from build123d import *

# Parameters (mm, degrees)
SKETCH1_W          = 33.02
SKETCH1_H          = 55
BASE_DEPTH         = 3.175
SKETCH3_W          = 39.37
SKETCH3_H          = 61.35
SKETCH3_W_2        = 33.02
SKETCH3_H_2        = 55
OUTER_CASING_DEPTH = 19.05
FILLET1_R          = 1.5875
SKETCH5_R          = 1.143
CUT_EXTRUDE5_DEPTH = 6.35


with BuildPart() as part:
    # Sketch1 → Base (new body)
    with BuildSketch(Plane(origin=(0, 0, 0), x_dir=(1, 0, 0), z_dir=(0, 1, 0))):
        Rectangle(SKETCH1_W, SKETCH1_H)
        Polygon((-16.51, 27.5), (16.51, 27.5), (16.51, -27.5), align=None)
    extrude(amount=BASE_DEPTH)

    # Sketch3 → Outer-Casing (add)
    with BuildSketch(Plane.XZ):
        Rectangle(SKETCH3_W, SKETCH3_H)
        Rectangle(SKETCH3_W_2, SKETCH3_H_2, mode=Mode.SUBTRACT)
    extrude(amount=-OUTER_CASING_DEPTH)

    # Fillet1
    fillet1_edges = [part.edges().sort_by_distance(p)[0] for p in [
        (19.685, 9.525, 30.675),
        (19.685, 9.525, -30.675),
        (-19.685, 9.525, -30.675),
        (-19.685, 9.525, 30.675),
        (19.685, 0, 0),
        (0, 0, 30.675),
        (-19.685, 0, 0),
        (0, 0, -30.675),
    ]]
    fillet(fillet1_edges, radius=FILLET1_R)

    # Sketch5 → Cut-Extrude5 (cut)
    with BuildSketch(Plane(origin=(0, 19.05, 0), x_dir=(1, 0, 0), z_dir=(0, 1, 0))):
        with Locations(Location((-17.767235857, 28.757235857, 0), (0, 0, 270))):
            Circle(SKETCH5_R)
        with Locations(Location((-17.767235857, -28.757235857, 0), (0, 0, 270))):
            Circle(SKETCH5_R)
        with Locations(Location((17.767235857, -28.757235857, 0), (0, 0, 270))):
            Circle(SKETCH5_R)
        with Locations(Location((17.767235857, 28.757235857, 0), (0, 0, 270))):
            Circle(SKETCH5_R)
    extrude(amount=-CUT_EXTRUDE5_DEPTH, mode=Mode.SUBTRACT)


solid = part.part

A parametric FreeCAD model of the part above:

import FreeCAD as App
import Part
import Sketcher
Q = App.Units.Quantity


def edges_at(feature, points):
    """Names of the edges that pass closest to the given points."""
    edges = feature.Shape.Edges
    near = lambda p: min(range(len(edges)), key=lambda i: edges[i].distToShape(Part.Vertex(*p))[0])
    return sorted({f"Edge{near(p) + 1}" for p in points})


def add_polygon(sketch, points):
    """Adds a closed chain of lines whose ends are joined by coincident constraints."""
    first, n = sketch.GeometryCount, len(points)
    for a, b in zip(points, points[1:] + points[:1]):
        sketch.addGeometry(Part.LineSegment(App.Vector(*a, 0), App.Vector(*b, 0)), False)
    for i in range(n):
        sketch.addConstraint(Sketcher.Constraint("Coincident", first + i, 2, first + (i + 1) % n, 1))

doc = App.newDocument("Part")
body = doc.addObject("PartDesign::Body", "Body")

sketch1 = doc.addObject("Sketcher::SketchObject", "Sketch")
body.addObject(sketch1)
sketch1.AttachmentSupport = (doc.XZ_Plane, [""])
sketch1.MapMode = "FlatFace"
add_polygon(sketch1, [(-16.51, -27.5), (-16.51, 27.5), (16.51, 27.5), (16.51, -27.5)])
sketch1.addConstraint(Sketcher.Constraint("Vertical", 0))
sketch1.addConstraint(Sketcher.Constraint("Horizontal", 1))
sketch1.addConstraint(Sketcher.Constraint("Vertical", 2))
sketch1.addConstraint(Sketcher.Constraint("Horizontal", 3))
sketch1.addConstraint(Sketcher.Constraint("Symmetric", 0, 2, 2, 2, -1, 1))
sketch1.addConstraint(Sketcher.Constraint("DistanceX", 1, 1, 1, 2, Q("1.3 in")))
sketch1.addConstraint(Sketcher.Constraint("DistanceY", 0, 1, 0, 2, 55.0))
pad1 = doc.addObject("PartDesign::Pad", "Pad")
body.addObject(pad1)
pad1.Profile = sketch1
pad1.Length = Q("0.125 in")
pad1.Reversed = True

sketch2 = doc.addObject("Sketcher::SketchObject", "Sketch001")
body.addObject(sketch2)
sketch2.AttachmentSupport = (doc.XZ_Plane, [""])
sketch2.MapMode = "FlatFace"
add_polygon(sketch2, [(-19.685, 30.675), (-19.685, -30.675), (19.685, -30.675), (19.685, 30.675)])
add_polygon(sketch2, [(16.51, -27.5), (-16.51, -27.5), (-16.51, 27.5), (16.51, 27.5)])
sketch2.addConstraint(Sketcher.Constraint("Vertical", 0))
sketch2.addConstraint(Sketcher.Constraint("Horizontal", 1))
sketch2.addConstraint(Sketcher.Constraint("Vertical", 2))
sketch2.addConstraint(Sketcher.Constraint("Horizontal", 3))
sketch2.addConstraint(Sketcher.Constraint("Horizontal", 4))
sketch2.addConstraint(Sketcher.Constraint("Vertical", 5))
sketch2.addConstraint(Sketcher.Constraint("Horizontal", 6))
sketch2.addConstraint(Sketcher.Constraint("Vertical", 7))
sketch2.addConstraint(Sketcher.Constraint("Symmetric", 0, 2, 2, 2, -1, 1))
sketch2.addConstraint(Sketcher.Constraint("Symmetric", 4, 2, 6, 2, -1, 1))
sketch2.addConstraint(Sketcher.Constraint("DistanceX", 4, 2, 4, 1, Q("1.3 in")))
sketch2.addConstraint(Sketcher.Constraint("DistanceX", 1, 1, 1, 2, Q("1.55 in")))
sketch2.addConstraint(Sketcher.Constraint("DistanceY", 0, 2, 4, 2, Q("0.125 in")))
sketch2.addConstraint(Sketcher.Constraint("DistanceY", 0, 2, 0, 1, 61.35))
pad2 = doc.addObject("PartDesign::Pad", "Pad001")
body.addObject(pad2)
pad2.Profile = sketch2
pad2.Length = Q("0.75 in")
pad2.Reversed = True
doc.recompute()

fillet = doc.addObject("PartDesign::Fillet", "Fillet")
body.addObject(fillet)
fillet.Base = (pad2, edges_at(pad2, [
    (19.685, 9.525, 30.675),
    (19.685, 9.525, -30.675),
    (-19.685, 9.525, -30.675),
    (-19.685, 9.525, 30.675),
    (19.685, 0, 0),
    (0, 0, 30.675),
    (-19.685, 0, 0),
    (0, 0, -30.675),
]))
fillet.Radius = Q("0.0625 in")

sketch3 = doc.addObject("Sketcher::SketchObject", "Sketch002")
body.addObject(sketch3)
sketch3.AttachmentSupport = (doc.XZ_Plane, [""])
sketch3.MapMode = "FlatFace"
sketch3.AttachmentOffset = App.Placement(App.Vector(0, 0, -0.75 * 25.4), App.Rotation())
sketch3.addGeometry(Part.Circle(App.Vector(-17.767236, -28.757236, 0), App.Vector(0, 0, 1), 1.143), False)
sketch3.addGeometry(Part.Circle(App.Vector(-17.767236, 28.757236, 0), App.Vector(0, 0, 1), 1.143), False)
sketch3.addGeometry(Part.Circle(App.Vector(17.767236, 28.757236, 0), App.Vector(0, 0, 1), 1.143), False)
sketch3.addGeometry(Part.Circle(App.Vector(17.767236, -28.757236, 0), App.Vector(0, 0, 1), 1.143), False)
sketch3.addConstraint(Sketcher.Constraint("Equal", 0, 1))
sketch3.addConstraint(Sketcher.Constraint("Equal", 1, 2))
sketch3.addConstraint(Sketcher.Constraint("Equal", 2, 3))
sketch3.addConstraint(Sketcher.Constraint("Symmetric", 0, 3, 2, 3, -1, 1))
sketch3.addConstraint(Sketcher.Constraint("Symmetric", 1, 3, 3, 3, -1, 1))
sketch3.addConstraint(Sketcher.Constraint("Symmetric", 1, 3, 2, 3, -2))
sketch3.addConstraint(Sketcher.Constraint("Diameter", 0, Q("0.09 in")))
sketch3.addConstraint(Sketcher.Constraint("DistanceY", 0, 3, 1, 3, 57.514472))
sketch3.addConstraint(Sketcher.Constraint("DistanceX", 1, 3, 2, 3, 35.534472))
pocket1 = doc.addObject("PartDesign::Pocket", "Pocket")
body.addObject(pocket1)
pocket1.Profile = sketch3
pocket1.Length = Q("0.25 in")
pocket1.Reversed = True

doc.recompute()
